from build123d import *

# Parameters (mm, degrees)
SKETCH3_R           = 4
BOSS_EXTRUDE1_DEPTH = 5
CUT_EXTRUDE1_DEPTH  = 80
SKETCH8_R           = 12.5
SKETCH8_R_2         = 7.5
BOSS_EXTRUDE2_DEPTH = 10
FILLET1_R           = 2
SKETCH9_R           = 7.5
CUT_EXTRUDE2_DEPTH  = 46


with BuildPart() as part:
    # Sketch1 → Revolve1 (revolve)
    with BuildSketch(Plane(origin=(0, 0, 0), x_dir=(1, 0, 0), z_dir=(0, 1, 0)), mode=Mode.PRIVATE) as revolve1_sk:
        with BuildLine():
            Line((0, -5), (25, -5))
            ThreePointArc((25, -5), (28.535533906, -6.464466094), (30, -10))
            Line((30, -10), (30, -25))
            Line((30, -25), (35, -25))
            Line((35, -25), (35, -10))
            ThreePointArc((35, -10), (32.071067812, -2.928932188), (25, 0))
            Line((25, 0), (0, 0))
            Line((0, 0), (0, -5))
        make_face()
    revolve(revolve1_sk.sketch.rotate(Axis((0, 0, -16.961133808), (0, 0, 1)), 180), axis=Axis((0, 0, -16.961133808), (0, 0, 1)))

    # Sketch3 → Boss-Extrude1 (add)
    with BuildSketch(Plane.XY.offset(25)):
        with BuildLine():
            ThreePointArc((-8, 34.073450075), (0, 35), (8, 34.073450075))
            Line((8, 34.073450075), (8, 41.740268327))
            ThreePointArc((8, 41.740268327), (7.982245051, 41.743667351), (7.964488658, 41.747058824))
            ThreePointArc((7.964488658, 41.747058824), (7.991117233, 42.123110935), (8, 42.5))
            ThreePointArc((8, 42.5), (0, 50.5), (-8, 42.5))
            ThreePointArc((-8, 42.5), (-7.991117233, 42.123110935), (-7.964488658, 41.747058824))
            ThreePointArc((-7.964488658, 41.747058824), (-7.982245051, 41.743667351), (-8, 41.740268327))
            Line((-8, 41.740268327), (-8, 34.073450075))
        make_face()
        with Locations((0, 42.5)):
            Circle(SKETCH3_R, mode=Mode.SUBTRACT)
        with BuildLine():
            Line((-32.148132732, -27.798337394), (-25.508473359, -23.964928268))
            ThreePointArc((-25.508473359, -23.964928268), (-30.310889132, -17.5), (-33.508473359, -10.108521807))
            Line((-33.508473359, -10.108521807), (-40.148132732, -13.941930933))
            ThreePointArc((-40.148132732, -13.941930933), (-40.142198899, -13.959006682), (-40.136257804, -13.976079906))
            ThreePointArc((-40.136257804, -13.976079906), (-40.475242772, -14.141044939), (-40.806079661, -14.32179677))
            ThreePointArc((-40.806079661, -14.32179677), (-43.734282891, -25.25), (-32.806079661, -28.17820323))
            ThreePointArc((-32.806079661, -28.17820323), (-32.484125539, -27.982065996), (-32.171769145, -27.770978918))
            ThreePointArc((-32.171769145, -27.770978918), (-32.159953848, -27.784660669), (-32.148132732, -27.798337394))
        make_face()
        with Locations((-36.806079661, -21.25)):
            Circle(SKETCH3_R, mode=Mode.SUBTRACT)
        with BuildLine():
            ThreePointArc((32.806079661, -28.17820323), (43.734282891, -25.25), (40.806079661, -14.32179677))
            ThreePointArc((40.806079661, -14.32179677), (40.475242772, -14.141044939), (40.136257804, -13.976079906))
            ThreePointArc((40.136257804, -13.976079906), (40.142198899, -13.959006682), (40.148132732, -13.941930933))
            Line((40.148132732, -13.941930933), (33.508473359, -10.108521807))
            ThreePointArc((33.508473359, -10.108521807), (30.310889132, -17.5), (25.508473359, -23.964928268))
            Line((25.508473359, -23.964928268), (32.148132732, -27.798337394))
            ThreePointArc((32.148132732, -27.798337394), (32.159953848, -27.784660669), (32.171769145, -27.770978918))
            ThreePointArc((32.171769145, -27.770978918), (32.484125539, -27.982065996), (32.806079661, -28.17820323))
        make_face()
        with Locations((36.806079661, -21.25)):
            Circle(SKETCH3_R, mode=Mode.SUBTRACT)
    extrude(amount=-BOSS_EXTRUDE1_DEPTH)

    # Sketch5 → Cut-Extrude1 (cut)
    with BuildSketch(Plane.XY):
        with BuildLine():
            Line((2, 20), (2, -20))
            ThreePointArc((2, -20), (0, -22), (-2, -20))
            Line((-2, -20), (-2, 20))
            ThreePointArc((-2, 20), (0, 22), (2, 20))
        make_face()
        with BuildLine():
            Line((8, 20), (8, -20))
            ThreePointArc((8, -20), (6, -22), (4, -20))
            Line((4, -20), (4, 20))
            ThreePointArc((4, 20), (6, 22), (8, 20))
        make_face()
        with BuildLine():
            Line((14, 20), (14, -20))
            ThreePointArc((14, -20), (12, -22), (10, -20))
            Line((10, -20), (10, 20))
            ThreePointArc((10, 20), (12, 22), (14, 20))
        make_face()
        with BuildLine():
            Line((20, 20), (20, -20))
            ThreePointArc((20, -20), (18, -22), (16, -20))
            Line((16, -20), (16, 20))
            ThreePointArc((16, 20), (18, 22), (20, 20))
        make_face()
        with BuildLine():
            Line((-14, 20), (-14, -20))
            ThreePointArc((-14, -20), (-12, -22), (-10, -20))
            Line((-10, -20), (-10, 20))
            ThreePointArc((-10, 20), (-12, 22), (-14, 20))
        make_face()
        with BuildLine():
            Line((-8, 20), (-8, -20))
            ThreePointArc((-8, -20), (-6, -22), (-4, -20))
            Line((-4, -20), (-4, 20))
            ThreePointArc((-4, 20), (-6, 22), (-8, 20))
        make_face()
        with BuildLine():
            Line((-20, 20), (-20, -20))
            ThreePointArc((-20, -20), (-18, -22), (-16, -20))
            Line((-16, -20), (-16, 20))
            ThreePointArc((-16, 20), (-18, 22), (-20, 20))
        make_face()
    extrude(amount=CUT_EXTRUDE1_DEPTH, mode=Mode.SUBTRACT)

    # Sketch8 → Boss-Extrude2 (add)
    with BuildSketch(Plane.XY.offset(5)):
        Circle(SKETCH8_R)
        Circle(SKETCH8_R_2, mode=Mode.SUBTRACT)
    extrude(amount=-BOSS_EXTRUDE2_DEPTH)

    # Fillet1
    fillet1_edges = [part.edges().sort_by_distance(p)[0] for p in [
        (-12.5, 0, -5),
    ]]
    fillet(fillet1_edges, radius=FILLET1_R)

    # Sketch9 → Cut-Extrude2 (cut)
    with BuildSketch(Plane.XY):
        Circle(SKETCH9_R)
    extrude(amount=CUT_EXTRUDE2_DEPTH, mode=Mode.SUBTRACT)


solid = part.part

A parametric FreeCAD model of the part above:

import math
import FreeCAD as App
import Part
import Sketcher
Q = App.Units.Quantity


def edges_at(feature, points):
    """Names of the edges that pass closest to the given points."""
    edges = feature.Shape.Edges
    near = lambda p: min(range(len(edges)), key=lambda i: edges[i].distToShape(Part.Vertex(*p))[0])
    return sorted({f"Edge{near(p) + 1}" for p in points})

doc = App.newDocument("Part")
body = doc.addObject("PartDesign::Body", "Body")

# Sketch on XZ plane
sketch1 = body.newObject("Sketcher::SketchObject", "Sketch")
sketch1.AttachmentSupport = (doc.getObject("XZ_Plane"), [""])
sketch1.MapMode = "FlatFace"
sketch1.addGeometry([
    Part.LineSegment(App.Vector(0, 5, 0), App.Vector(25, 5, 0)),  # 0
    Part.ArcOfCircle(Part.Circle(App.Vector(25, 10, 0), App.Vector(0, 0, 1), 5), math.radians(-90), math.radians(0)),  # 1
    Part.LineSegment(App.Vector(30, 10, 0), App.Vector(30, 25, 0)),  # 2
    Part.LineSegment(App.Vector(30, 25, 0), App.Vector(35, 25, 0)),  # 3
    Part.LineSegment(App.Vector(35, 25, 0), App.Vector(35, 10, 0)),  # 4
    Part.ArcOfCircle(Part.Circle(App.Vector(25, 10, 0), App.Vector(0, 0, 1), 10), math.radians(-90), math.radians(0)),  # 5
    Part.LineSegment(App.Vector(25, 0, 0), App.Vector(0, 0, 0)),  # 6
    Part.LineSegment(App.Vector(0, 0, 0), App.Vector(0, 5, 0)),  # 7
], False)
sketch1.addConstraint([
    Sketcher.Constraint("Tangent", 0, 2, 1, 1),
    Sketcher.Constraint("Tangent", 1, 2, 2, 1),
    Sketcher.Constraint("Coincident", 2, 2, 3, 1),
    Sketcher.Constraint("Coincident", 3, 2, 4, 1),
    Sketcher.Constraint("Tangent", 4, 2, 5, 2),
    Sketcher.Constraint("Tangent", 5, 1, 6, 1),
    Sketcher.Constraint("Coincident", 6, 2, 7, 1),
    Sketcher.Constraint("Coincident", 7, 2, 0, 1),
    Sketcher.Constraint("Horizontal", 0),
    Sketcher.Constraint("Vertical", 2),
    Sketcher.Constraint("Horizontal", 3),
    Sketcher.Constraint("Vertical", 4),
    Sketcher.Constraint("Horizontal", 6),
    Sketcher.Constraint("Vertical", 7),
    Sketcher.Constraint("Coincident", 6, 2, -1, 1),
    Sketcher.Constraint("Coincident", 5, 3, 1, 3),
    Sketcher.Constraint("Radius", 1, 5.0),
    Sketcher.Constraint("Radius", 5, 10.0),
    Sketcher.Constraint("DistanceX", 0, 1, 0, 2, 25.0),
    Sketcher.Constraint("DistanceY", 2, 1, 2, 2, 15.0),
])
revolution = body.newObject("PartDesign::Revolution", "Revolution")
revolution.Profile = sketch1
revolution.ReferenceAxis = (sketch1, ["V_Axis"])
revolution.Angle = 360

# Sketch on XY plane
sketch2 = body.newObject("Sketcher::SketchObject", "Sketch001")
sketch2.AttachmentSupport = (doc.getObject("XY_Plane"), [""])
sketch2.MapMode = "FlatFace"
sketch2.AttachmentOffset = App.Placement(App.Vector(0, 0, 25), App.Rotation())
sketch2.addGeometry([
    Part.ArcOfCircle(Part.Circle(App.Vector(0, 0, 0), App.Vector(0, 0, 1), 35), math.radians(77), math.radians(103)),  # 0
    Part.LineSegment(App.Vector(8, 34.073, 0), App.Vector(8, 41.74, 0)),  # 1
    Part.ArcOfCircle(Part.Circle(App.Vector(-0.001, -0.008, 0), App.Vector(0, 0, 1), 42.508), math.radians(79.15), math.radians(79.2)),  # 2
    Part.ArcOfCircle(Part.Circle(App.Vector(0, 42.5, 0), App.Vector(0, 0, 1), 8), math.radians(-5.4), math.radians(0)),  # 3
    Part.ArcOfCircle(Part.Circle(App.Vector(0, 42.5, 0), App.Vector(0, 0, 1), 8), math.radians(0), math.radians(180)),  # 4
    Part.ArcOfCircle(Part.Circle(App.Vector(0, 42.5, 0), App.Vector(0, 0, 1), 8), math.radians(-180), math.radians(-174.6)),  # 5
    Part.ArcOfCircle(Part.Circle(App.Vector(0.001, -0.008, 0), App.Vector(0, 0, 1), 42.508), math.radians(100.8), math.radians(100.85)),  # 6
    Part.LineSegment(App.Vector(-8, 41.74, 0), App.Vector(-8, 34.073, 0)),  # 7
    Part.Circle(App.Vector(0, 42.5, 0), App.Vector(0, 0, 1), 4),  # 8
    Part.LineSegment(App.Vector(-32.148, -27.798, 0), App.Vector(-25.508, -23.965, 0)),  # 9
    Part.ArcOfCircle(Part.Circle(App.Vector(0, 0, 0), App.Vector(0, 0, 1), 35), math.radians(-163), math.radians(-137)),  # 10
    Part.LineSegment(App.Vector(-33.508, -10.109, 0), App.Vector(-40.148, -13.942, 0)),  # 11
    Part.ArcOfCircle(Part.Circle(App.Vector(0.004, 0.001, 0), App.Vector(0, 0, 1), 42.504), math.radians(-160.85), math.radians(-160.8)),  # 12
    Part.ArcOfCircle(Part.Circle(App.Vector(-36.806, -21.25, 0), App.Vector(0, 0, 1), 8), math.radians(114.6), math.radians(120)),  # 13
    Part.ArcOfCircle(Part.Circle(App.Vector(-36.806, -21.25, 0), App.Vector(0, 0, 1), 8), math.radians(120), math.radians(300)),  # 14
    Part.ArcOfCircle(Part.Circle(App.Vector(-36.806, -21.25, 0), App.Vector(0, 0, 1), 8), math.radians(-60), math.radians(-54.6)),  # 15
    Part.ArcOfCircle(Part.Circle(App.Vector(0.001, 0.001, 0), App.Vector(0, 0, 1), 42.501), math.radians(-139.2), math.radians(-139.15)),  # 16
    Part.Circle(App.Vector(-36.806, -21.25, 0), App.Vector(0, 0, 1), 4),  # 17
    Part.ArcOfCircle(Part.Circle(App.Vector(36.806, -21.25, 0), App.Vector(0, 0, 1), 8), math.radians(-120), math.radians(60)),  # 18
    Part.ArcOfCircle(Part.Circle(App.Vector(36.806, -21.25, 0), App.Vector(0, 0, 1), 8), math.radians(60), math.radians(65.4)),  # 19
    Part.ArcOfCircle(Part.Circle(App.Vector(-0.004, 0.001, 0), App.Vector(0, 0, 1), 42.504), math.radians(-19.2), math.radians(-19.15)),  # 20
    Part.LineSegment(App.Vector(40.148, -13.942, 0), App.Vector(33.508, -10.109, 0)),  # 21
    Part.ArcOfCircle(Part.Circle(App.Vector(0, 0, 0), App.Vector(0, 0, 1), 35), math.radians(-43), math.radians(-17)),  # 22
    Part.LineSegment(App.Vector(25.508, -23.965, 0), App.Vector(32.148, -27.798, 0)),  # 23
    Part.ArcOfCircle(Part.Circle(App.Vector(-0.001, 0.001, 0), App.Vector(0, 0, 1), 42.501), math.radians(-40.85), math.radians(-40.8)),  # 24
    Part.ArcOfCircle(Part.Circle(App.Vector(36.806, -21.25, 0), App.Vector(0, 0, 1), 8), math.radians(-125.4), math.radians(-120)),  # 25
    Part.Circle(App.Vector(36.806, -21.25, 0), App.Vector(0, 0, 1), 4),  # 26
], False)
sketch2.addConstraint([
    Sketcher.Constraint("Coincident", 0, 1, 1, 1),
    Sketcher.Constraint("Coincident", 1, 2, 2, 1),
    Sketcher.Constraint("Coincident", 2, 2, 3, 1),
    Sketcher.Constraint("Tangent", 3, 2, 4, 1),
    Sketcher.Constraint("Tangent", 4, 2, 5, 1),
    Sketcher.Constraint("Coincident", 5, 2, 6, 1),
    Sketcher.Constraint("Coincident", 6, 2, 7, 1),
    Sketcher.Constraint("Coincident", 7, 2, 0, 2),
    Sketcher.Constraint("Coincident", 9, 2, 10, 2),
    Sketcher.Constraint("Coincident", 10, 1, 11, 1),
    Sketcher.Constraint("Coincident", 11, 2, 12, 1),
    Sketcher.Constraint("Coincident", 12, 2, 13, 1),
    Sketcher.Constraint("Tangent", 13, 2, 14, 1),
    Sketcher.Constraint("Tangent", 14, 2, 15, 1),
    Sketcher.Constraint("Coincident", 15, 2, 16, 1),
    Sketcher.Constraint("Coincident", 16, 2, 9, 1),
    Sketcher.Constraint("Tangent", 18, 2, 19, 1),
    Sketcher.Constraint("Coincident", 19, 2, 20, 1),
    Sketcher.Constraint("Coincident", 20, 2, 21, 1),
    Sketcher.Constraint("Coincident", 21, 2, 22, 2),
    Sketcher.Constraint("Coincident", 22, 1, 23, 1),
    Sketcher.Constraint("Coincident", 23, 2, 24, 1),
    Sketcher.Constraint("Coincident", 24, 2, 25, 1),
    Sketcher.Constraint("Tangent", 25, 2, 18, 1),
    Sketcher.Constraint("Vertical", 1),
    Sketcher.Constraint("Vertical", 7),
    Sketcher.Constraint("Coincident", 0, 3, -1, 1),
    Sketcher.Constraint("Coincident", 10, 3, -1, 1),
    Sketcher.Constraint("Coincident", 22, 3, -1, 1),
    Sketcher.Constraint("Coincident", 8, 3, 3, 3),
    Sketcher.Constraint("Coincident", 17, 3, 13, 3),
    Sketcher.Constraint("Coincident", 26, 3, 18, 3),
    Sketcher.Constraint("Equal", 3, 4),
    Sketcher.Constraint("Equal", 4, 5),
    Sketcher.Constraint("Equal", 2, 6),
    Sketcher.Constraint("Equal", 0, 10),
    Sketcher.Constraint("Equal", 5, 13),
    Sketcher.Constraint("Equal", 13, 14),
    Sketcher.Constraint("Equal", 14, 15),
    Sketcher.Constraint("Equal", 8, 17),
    Sketcher.Constraint("Equal", 15, 18),
    Sketcher.Constraint("Equal", 18, 19),
    Sketcher.Constraint("Equal", 12, 20),
    Sketcher.Constraint("Equal", 10, 22),
    Sketcher.Constraint("Equal", 16, 24),
    Sketcher.Constraint("Equal", 19, 25),
    Sketcher.Constraint("Equal", 17, 26),
    Sketcher.Constraint("Symmetric", 2, 3, 6, 3, -2),
    Sketcher.Constraint("Symmetric", 13, 3, 18, 3, -2),
    Sketcher.Constraint("Symmetric", 12, 3, 20, 3, -2),
    Sketcher.Constraint("Symmetric", 16, 3, 24, 3, -2),
    Sketcher.Constraint("Symmetric", 3, 2, 4, 2, -2),
    Sketcher.Constraint("Parallel", 9, 11),
    Sketcher.Constraint("Parallel", 21, 23),
    Sketcher.Constraint("Horizontal", 8, 3, 3, 2),
    Sketcher.Constraint("Horizontal", 1, 2, 6, 2),
    Sketcher.Constraint("Horizontal", 13, 2, 18, 2),
    Sketcher.Constraint("Horizontal", 11, 2, 20, 2),
    Sketcher.Constraint("Horizontal", 10, 1, 21, 2),
    Sketcher.Constraint("Horizontal", 9, 2, 22, 1),
    Sketcher.Constraint("Horizontal", 14, 2, 25, 2),
    Sketcher.Constraint("Vertical", 1, 2, 3, 2),
    Sketcher.Constraint("Equal", 9, 11),
    Sketcher.Constraint("Diameter", 8, 8.0),
    Sketcher.Constraint("Radius", 0, 35.0),
    Sketcher.Constraint("Radius", 3, 8.0),
    Sketcher.Constraint("Angle", 9, Q("30 deg")),
    Sketcher.Constraint("DistanceX", 10, 1, 9, 2, 8.0),
    Sketcher.Constraint("DistanceX", 13, 2, 14, 3, 4.0),
    Sketcher.Constraint("DistanceX", 15, 3, 14, 2, 4.0),
    Sketcher.Constraint("DistanceY", -1, 1, 3, 3, 42.5),
    Sketcher.Constraint("DistanceY", 13, 3, -1, 1, 21.25),
    Sketcher.Constraint("Radius", 12, 42.50422),
    Sketcher.Constraint("Radius", 2, 42.507647),
    Sketcher.Constraint("Radius", 16, 42.500923),
    Sketcher.Constraint("DistanceY", 1, 1, 1, 2, 7.666818),
    Sketcher.Constraint("DistanceX", -1, 1, 16, 3, 0.000699),
    Sketcher.Constraint("Distance", 9, 7.666818),
    Sketcher.Constraint("DistanceY", 2, 3, -1, 1, 0.00751),
    Sketcher.Constraint("DistanceX", 13, 3, -1, 1, 36.80608),
    Sketcher.Constraint("DistanceY", 9, 2, -1, 1, 23.964928),
    Sketcher.Constraint("DistanceX", 6, 3, 12, 3, 0.002549),
])
pad1 = body.newObject("PartDesign::Pad", "Pad")
pad1.Profile = sketch2
pad1.Length = 5
pad1.Reversed = True

# Sketch on XY plane
sketch3 = body.newObject("Sketcher::SketchObject", "Sketch002")
sketch3.AttachmentSupport = (doc.getObject("XY_Plane"), [""])
sketch3.MapMode = "FlatFace"
sketch3.addGeometry([
    Part.LineSegment(App.Vector(2, -20, 0), App.Vector(2, 20, 0)),  # 0
    Part.ArcOfCircle(Part.Circle(App.Vector(0, 20, 0), App.Vector(0, 0, 1), 2), math.radians(0), math.radians(180)),  # 1
    Part.LineSegment(App.Vector(-2, 20, 0), App.Vector(-2, -20, 0)),  # 2
    Part.ArcOfCircle(Part.Circle(App.Vector(0, -20, 0), App.Vector(0, 0, 1), 2), math.radians(180), math.radians(360)),  # 3
    Part.LineSegment(App.Vector(8, -20, 0), App.Vector(8, 20, 0)),  # 4
    Part.ArcOfCircle(Part.Circle(App.Vector(6, 20, 0), App.Vector(0, 0, 1), 2), math.radians(0), math.radians(180)),  # 5
    Part.LineSegment(App.Vector(4, 20, 0), App.Vector(4, -20, 0)),  # 6
    Part.ArcOfCircle(Part.Circle(App.Vector(6, -20, 0), App.Vector(0, 0, 1), 2), math.radians(180), math.radians(360)),  # 7
    Part.LineSegment(App.Vector(14, -20, 0), App.Vector(14, 20, 0)),  # 8
    Part.ArcOfCircle(Part.Circle(App.Vector(12, 20, 0), App.Vector(0, 0, 1), 2), math.radians(0), math.radians(180)),  # 9
    Part.LineSegment(App.Vector(10, 20, 0), App.Vector(10, -20, 0)),  # 10
    Part.ArcOfCircle(Part.Circle(App.Vector(12, -20, 0), App.Vector(0, 0, 1), 2), math.radians(180), math.radians(360)),  # 11
    Part.LineSegment(App.Vector(20, -20, 0), App.Vector(20, 20, 0)),  # 12
    Part.ArcOfCircle(Part.Circle(App.Vector(18, 20, 0), App.Vector(0, 0, 1), 2), math.radians(0), math.radians(180)),  # 13
    Part.LineSegment(App.Vector(16, 20, 0), App.Vector(16, -20, 0)),  # 14
    Part.ArcOfCircle(Part.Circle(App.Vector(18, -20, 0), App.Vector(0, 0, 1), 2), math.radians(180), math.radians(360)),  # 15
    Part.LineSegment(App.Vector(-14, 20, 0), App.Vector(-14, -20, 0)),  # 16
    Part.ArcOfCircle(Part.Circle(App.Vector(-12, -20, 0), App.Vector(0, 0, 1), 2), math.radians(180), math.radians(360)),  # 17
    Part.LineSegment(App.Vector(-10, -20, 0), App.Vector(-10, 20, 0)),  # 18
    Part.ArcOfCircle(Part.Circle(App.Vector(-12, 20, 0), App.Vector(0, 0, 1), 2), math.radians(0), math.radians(180)),  # 19
    Part.LineSegment(App.Vector(-8, 20, 0), App.Vector(-8, -20, 0)),  # 20
    Part.ArcOfCircle(Part.Circle(App.Vector(-6, -20, 0), App.Vector(0, 0, 1), 2), math.radians(180), math.radians(360)),  # 21
    Part.LineSegment(App.Vector(-4, -20, 0), App.Vector(-4, 20, 0)),  # 22
    Part.ArcOfCircle(Part.Circle(App.Vector(-6, 20, 0), App.Vector(0, 0, 1), 2), math.radians(0), math.radians(180)),  # 23
    Part.LineSegment(App.Vector(-20, 20, 0), App.Vector(-20, -20, 0)),  # 24
    Part.ArcOfCircle(Part.Circle(App.Vector(-18, -20, 0), App.Vector(0, 0, 1), 2), math.radians(180), math.radians(360)),  # 25
    Part.LineSegment(App.Vector(-16, -20, 0), App.Vector(-16, 20, 0)),  # 26
    Part.ArcOfCircle(Part.Circle(App.Vector(-18, 20, 0), App.Vector(0, 0, 1), 2), math.radians(0), math.radians(180)),  # 27
], False)
sketch3.addConstraint([
    Sketcher.Constraint("Tangent", 0, 2, 1, 1),
    Sketcher.Constraint("Tangent", 1, 2, 2, 1),
    Sketcher.Constraint("Tangent", 2, 2, 3, 1),
    Sketcher.Constraint("Tangent", 3, 2, 0, 1),
    Sketcher.Constraint("Tangent", 4, 2, 5, 1),
    Sketcher.Constraint("Tangent", 5, 2, 6, 1),
    Sketcher.Constraint("Tangent", 6, 2, 7, 1),
    Sketcher.Constraint("Tangent", 7, 2, 4, 1),
    Sketcher.Constraint("Tangent", 8, 2, 9, 1),
    Sketcher.Constraint("Tangent", 9, 2, 10, 1),
    Sketcher.Constraint("Tangent", 10, 2, 11, 1),
    Sketcher.Constraint("Tangent", 11, 2, 8, 1),
    Sketcher.Constraint("Tangent", 12, 2, 13, 1),
    Sketcher.Constraint("Tangent", 13, 2, 14, 1),
    Sketcher.Constraint("Tangent", 14, 2, 15, 1),
    Sketcher.Constraint("Tangent", 15, 2, 12, 1),
    Sketcher.Constraint("Tangent", 16, 2, 17, 1),
    Sketcher.Constraint("Tangent", 17, 2, 18, 1),
    Sketcher.Constraint("Tangent", 18, 2, 19, 1),
    Sketcher.Constraint("Tangent", 19, 2, 16, 1),
    Sketcher.Constraint("Tangent", 20, 2, 21, 1),
    Sketcher.Constraint("Tangent", 21, 2, 22, 1),
    Sketcher.Constraint("Tangent", 22, 2, 23, 1),
    Sketcher.Constraint("Tangent", 23, 2, 20, 1),
    Sketcher.Constraint("Tangent", 24, 2, 25, 1),
    Sketcher.Constraint("Tangent", 25, 2, 26, 1),
    Sketcher.Constraint("Tangent", 26, 2, 27, 1),
    Sketcher.Constraint("Tangent", 27, 2, 24, 1),
    Sketcher.Constraint("Vertical", 0),
    Sketcher.Constraint("Vertical", 2),
    Sketcher.Constraint("Vertical", 4),
    Sketcher.Constraint("Vertical", 6),
    Sketcher.Constraint("Vertical", 8),
    Sketcher.Constraint("Vertical", 10),
    Sketcher.Constraint("Vertical", 12),
    Sketcher.Constraint("Vertical", 14),
    Sketcher.Constraint("Vertical", 16),
    Sketcher.Constraint("Vertical", 18),
    Sketcher.Constraint("Vertical", 20),
    Sketcher.Constraint("Vertical", 22),
    Sketcher.Constraint("Vertical", 24),
    Sketcher.Constraint("Vertical", 26),
    Sketcher.Constraint("Equal", 3, 5),
    Sketcher.Constraint("Equal", 7, 9),
    Sketcher.Constraint("Equal", 11, 13),
    Sketcher.Constraint("Equal", 15, 17),
    Sketcher.Constraint("Equal", 19, 21),
    Sketcher.Constraint("Equal", 23, 25),
    Sketcher.Constraint("Symmetric", 1, 3, 3, 3, -1, 1),
    Sketcher.Constraint("Symmetric", 9, 3, 17, 3, -1, 1),
    Sketcher.Constraint("Symmetric", 5, 3, 21, 3, -1, 1),
    Sketcher.Constraint("Symmetric", 13, 3, 25, 3, -1, 1),
    Sketcher.Constraint("Horizontal", 1, 3, 5, 3),
    Sketcher.Constraint("Horizontal", 3, 3, 7, 3),
    Sketcher.Constraint("Horizontal", 5, 3, 9, 3),
    Sketcher.Constraint("Horizontal", 7, 3, 11, 3),
    Sketcher.Constraint("Horizontal", 9, 3, 13, 3),
    Sketcher.Constraint("Horizontal", 11, 3, 15, 3),
    Sketcher.Constraint("Horizontal", 13, 3, 19, 3),
    Sketcher.Constraint("Horizontal", 19, 3, 23, 3),
    Sketcher.Constraint("Horizontal", 23, 3, 27, 3),
    Sketcher.Constraint("Radius", 1, 2.0),
    Sketcher.Constraint("DistanceY", 0, 1, 0, 2, 40.0),
    Sketcher.Constraint("DistanceX", -1, 1, 5, 3, 6.0),
    Sketcher.Constraint("DistanceX", -1, 1, 9, 3, 12.0),
    Sketcher.Constraint("DistanceX", -1, 1, 13, 3, 18.0),
])
pocket1 = body.newObject("PartDesign::Pocket", "Pocket")
pocket1.Profile = sketch3
pocket1.Length = 80
pocket1.Reversed = True

# Sketch on XY plane
sketch4 = body.newObject("Sketcher::SketchObject", "Sketch003")
sketch4.AttachmentSupport = (doc.getObject("XY_Plane"), [""])
sketch4.MapMode = "FlatFace"
sketch4.AttachmentOffset = App.Placement(App.Vector(0, 0, 5), App.Rotation())
sketch4.addGeometry([
    Part.Circle(App.Vector(0, 0, 0), App.Vector(0, 0, 1), 12),
    Part.Circle(App.Vector(0, 0, 0), App.Vector(0, 0, 1), 8),
], False)
sketch4.addConstraint([
    Sketcher.Constraint("Coincident", 0, 3, -1, 1),
    Sketcher.Constraint("Coincident", 1, 3, -1, 1),
    Sketcher.Constraint("Diameter", 0, 25.0),
    Sketcher.Constraint("Diameter", 1, 15.0),
])
pad2 = body.newObject("PartDesign::Pad", "Pad001")
pad2.Profile = sketch4
pad2.Length = 10
pad2.Reversed = True
doc.recompute()

fillet = body.newObject("PartDesign::Fillet", "Fillet")
fillet.Base = (pad2, edges_at(pad2, [(-12.5, 0, -5)]))
fillet.Radius = 2

# Sketch on XY plane
sketch5 = body.newObject("Sketcher::SketchObject", "Sketch004")
sketch5.AttachmentSupport = (doc.getObject("XY_Plane"), [""])
sketch5.MapMode = "FlatFace"
sketch5.addGeometry(Part.Circle(App.Vector(0, 0, 0), App.Vector(0, 0, 1), 8), False)
sketch5.addConstraint([
    Sketcher.Constraint("Coincident", 0, 3, -1, 1),
    Sketcher.Constraint("Diameter", 0, 15.0),
])
pocket2 = body.newObject("PartDesign::Pocket", "Pocket001")
pocket2.Profile = sketch5
pocket2.Length = 46
pocket2.Reversed = True

doc.recompute()
